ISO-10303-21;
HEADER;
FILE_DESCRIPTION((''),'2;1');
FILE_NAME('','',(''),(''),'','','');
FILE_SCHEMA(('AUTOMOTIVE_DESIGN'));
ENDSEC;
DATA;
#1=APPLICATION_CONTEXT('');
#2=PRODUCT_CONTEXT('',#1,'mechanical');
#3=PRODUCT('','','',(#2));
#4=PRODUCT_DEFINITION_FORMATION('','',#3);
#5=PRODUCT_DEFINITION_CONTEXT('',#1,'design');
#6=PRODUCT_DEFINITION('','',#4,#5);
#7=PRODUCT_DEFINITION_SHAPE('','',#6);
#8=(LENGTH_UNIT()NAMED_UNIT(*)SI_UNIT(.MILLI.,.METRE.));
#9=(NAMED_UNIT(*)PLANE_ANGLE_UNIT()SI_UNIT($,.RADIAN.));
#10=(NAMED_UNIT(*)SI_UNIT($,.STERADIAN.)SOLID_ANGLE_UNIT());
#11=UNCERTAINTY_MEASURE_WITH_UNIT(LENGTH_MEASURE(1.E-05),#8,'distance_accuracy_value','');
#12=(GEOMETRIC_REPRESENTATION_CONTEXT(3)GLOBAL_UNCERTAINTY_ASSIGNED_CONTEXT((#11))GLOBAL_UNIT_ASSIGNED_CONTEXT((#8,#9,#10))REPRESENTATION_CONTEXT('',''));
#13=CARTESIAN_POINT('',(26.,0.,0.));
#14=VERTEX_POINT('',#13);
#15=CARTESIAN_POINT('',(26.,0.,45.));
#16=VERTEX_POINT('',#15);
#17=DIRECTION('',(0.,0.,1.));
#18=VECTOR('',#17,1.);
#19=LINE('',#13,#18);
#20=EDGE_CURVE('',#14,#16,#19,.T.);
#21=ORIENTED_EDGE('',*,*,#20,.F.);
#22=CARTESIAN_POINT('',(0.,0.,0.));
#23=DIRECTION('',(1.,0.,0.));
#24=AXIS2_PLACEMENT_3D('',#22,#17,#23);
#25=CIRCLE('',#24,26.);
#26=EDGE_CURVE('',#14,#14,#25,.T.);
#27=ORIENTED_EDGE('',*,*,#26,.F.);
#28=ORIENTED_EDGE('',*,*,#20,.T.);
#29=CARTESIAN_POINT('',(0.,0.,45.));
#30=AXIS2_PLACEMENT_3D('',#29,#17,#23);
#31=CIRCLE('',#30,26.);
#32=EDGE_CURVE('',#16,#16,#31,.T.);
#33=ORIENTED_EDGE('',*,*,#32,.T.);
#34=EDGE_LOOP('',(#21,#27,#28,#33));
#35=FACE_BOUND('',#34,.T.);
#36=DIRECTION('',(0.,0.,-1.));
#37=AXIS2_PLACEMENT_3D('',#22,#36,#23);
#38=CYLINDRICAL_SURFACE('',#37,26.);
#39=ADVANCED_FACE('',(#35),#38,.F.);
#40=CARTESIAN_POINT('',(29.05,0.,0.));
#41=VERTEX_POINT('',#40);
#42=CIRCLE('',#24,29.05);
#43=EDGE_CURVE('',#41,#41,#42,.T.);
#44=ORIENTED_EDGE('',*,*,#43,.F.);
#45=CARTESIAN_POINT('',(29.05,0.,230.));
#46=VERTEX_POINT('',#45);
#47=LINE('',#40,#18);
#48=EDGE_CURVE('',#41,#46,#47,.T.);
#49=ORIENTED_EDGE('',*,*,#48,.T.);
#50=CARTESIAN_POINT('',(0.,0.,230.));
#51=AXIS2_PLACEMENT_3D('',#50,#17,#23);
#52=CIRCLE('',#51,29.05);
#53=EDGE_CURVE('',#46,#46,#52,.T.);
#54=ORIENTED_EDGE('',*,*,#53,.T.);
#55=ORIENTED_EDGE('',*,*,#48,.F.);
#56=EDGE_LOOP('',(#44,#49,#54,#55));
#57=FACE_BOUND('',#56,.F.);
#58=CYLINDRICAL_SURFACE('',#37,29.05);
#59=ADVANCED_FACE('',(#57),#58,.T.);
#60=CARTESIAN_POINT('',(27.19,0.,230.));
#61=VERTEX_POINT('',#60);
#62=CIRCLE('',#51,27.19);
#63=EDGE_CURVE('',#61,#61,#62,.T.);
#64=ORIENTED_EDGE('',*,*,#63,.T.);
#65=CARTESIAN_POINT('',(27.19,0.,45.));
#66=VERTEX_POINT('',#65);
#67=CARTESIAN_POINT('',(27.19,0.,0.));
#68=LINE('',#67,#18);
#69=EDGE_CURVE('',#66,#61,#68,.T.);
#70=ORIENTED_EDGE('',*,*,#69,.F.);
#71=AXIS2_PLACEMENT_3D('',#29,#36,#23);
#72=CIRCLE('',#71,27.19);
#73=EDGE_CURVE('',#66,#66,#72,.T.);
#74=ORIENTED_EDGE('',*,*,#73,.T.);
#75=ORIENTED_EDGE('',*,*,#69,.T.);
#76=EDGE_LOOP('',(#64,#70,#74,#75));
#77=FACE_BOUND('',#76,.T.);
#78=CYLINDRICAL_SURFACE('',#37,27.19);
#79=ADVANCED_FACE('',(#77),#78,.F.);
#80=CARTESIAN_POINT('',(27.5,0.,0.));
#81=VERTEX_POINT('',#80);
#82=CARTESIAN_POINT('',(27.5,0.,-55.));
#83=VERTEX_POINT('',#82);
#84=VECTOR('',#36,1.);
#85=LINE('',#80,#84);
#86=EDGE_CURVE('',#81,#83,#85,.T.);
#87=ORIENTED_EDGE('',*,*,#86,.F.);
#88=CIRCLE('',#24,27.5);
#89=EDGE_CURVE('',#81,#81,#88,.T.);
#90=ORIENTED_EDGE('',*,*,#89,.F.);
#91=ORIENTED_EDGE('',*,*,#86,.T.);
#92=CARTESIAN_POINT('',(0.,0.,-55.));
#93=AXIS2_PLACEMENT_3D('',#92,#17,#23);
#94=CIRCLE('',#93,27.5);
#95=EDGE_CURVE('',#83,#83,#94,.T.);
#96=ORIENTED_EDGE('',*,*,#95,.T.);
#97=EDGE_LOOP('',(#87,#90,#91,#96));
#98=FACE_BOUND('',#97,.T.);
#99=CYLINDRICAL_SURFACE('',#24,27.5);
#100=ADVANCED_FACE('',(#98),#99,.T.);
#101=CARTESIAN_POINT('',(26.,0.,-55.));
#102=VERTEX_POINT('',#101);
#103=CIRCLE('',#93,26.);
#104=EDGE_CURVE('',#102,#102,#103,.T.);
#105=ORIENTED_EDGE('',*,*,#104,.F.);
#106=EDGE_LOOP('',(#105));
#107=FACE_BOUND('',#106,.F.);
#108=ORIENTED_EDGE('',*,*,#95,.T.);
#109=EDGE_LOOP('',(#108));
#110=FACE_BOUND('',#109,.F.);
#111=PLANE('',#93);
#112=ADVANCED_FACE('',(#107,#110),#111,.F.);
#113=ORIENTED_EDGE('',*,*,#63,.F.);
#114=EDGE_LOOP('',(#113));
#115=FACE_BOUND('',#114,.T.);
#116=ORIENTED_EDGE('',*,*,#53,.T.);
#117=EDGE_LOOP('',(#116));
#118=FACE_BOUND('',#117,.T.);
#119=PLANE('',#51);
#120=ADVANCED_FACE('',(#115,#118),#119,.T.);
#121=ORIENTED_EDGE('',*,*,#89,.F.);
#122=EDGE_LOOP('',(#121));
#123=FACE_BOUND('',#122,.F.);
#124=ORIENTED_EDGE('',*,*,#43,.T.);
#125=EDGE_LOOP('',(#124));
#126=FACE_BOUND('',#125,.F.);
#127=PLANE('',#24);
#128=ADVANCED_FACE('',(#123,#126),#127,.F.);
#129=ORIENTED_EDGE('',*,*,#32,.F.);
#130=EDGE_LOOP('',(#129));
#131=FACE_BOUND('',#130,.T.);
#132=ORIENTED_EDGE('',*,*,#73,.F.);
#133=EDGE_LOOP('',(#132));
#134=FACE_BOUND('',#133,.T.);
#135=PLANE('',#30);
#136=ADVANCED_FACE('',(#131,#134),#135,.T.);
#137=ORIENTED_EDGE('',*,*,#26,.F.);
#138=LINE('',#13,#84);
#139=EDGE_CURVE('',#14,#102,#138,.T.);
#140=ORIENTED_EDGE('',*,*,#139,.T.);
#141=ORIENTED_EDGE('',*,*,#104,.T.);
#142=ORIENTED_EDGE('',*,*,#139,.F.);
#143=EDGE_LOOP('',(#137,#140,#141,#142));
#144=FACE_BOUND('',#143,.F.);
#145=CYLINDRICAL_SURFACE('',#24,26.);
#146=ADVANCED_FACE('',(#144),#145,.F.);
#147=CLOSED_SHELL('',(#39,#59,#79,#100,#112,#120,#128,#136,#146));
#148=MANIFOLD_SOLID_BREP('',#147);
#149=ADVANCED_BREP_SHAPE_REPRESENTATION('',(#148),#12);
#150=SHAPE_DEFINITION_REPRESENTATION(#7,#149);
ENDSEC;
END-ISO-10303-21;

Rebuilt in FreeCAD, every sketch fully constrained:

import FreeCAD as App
import Part
import Sketcher

V = App.Vector

doc = App.newDocument("Part")
body = doc.addObject("PartDesign::Body", "Body")

# Sketch on XY plane
sketch1 = doc.addObject("Sketcher::SketchObject", "Sketch")
body.addObject(sketch1)
sketch1.AttachmentSupport = (doc.XY_Plane, [""])
sketch1.MapMode = "FlatFace"
sketch1.addGeometry([
    Part.Circle(V(0, 0, 0), V(0, 0, 1), 29.05),
    Part.Circle(V(0, 0, 0), V(0, 0, 1), 27.19),
], False)
sketch1.addConstraint([
    Sketcher.Constraint("Coincident", 0, 3, -1, 1),
    Sketcher.Constraint("Coincident", 1, 3, -1, 1),
    Sketcher.Constraint("Diameter", 0, 58.1),
    Sketcher.Constraint("Diameter", 1, 54.38),
])
pad1 = doc.addObject("PartDesign::Pad", "Pad")
body.addObject(pad1)
pad1.Profile = sketch1
pad1.Length = 230

# Sketch on XY plane
sketch2 = doc.addObject("Sketcher::SketchObject", "Sketch001")
body.addObject(sketch2)
sketch2.AttachmentSupport = (doc.XY_Plane, [""])
sketch2.MapMode = "FlatFace"
sketch2.addGeometry([
    Part.Circle(V(0, 0, 0), V(0, 0, 1), 27.5),
    Part.Circle(V(0, 0, 0), V(0, 0, 1), 26),
], False)
sketch2.addConstraint([
    Sketcher.Constraint("Coincident", 0, 3, -1, 1),
    Sketcher.Constraint("Coincident", 1, 3, -1, 1),
    Sketcher.Constraint("Diameter", 0, 55.0),
    Sketcher.Constraint("Diameter", 1, 52.0),
])
pad2 = doc.addObject("PartDesign::Pad", "Pad001")
body.addObject(pad2)
pad2.Profile = sketch2
pad2.Type = "TwoLengths"
pad2.Length = 45
pad2.Length2 = 55

doc.recompute()
